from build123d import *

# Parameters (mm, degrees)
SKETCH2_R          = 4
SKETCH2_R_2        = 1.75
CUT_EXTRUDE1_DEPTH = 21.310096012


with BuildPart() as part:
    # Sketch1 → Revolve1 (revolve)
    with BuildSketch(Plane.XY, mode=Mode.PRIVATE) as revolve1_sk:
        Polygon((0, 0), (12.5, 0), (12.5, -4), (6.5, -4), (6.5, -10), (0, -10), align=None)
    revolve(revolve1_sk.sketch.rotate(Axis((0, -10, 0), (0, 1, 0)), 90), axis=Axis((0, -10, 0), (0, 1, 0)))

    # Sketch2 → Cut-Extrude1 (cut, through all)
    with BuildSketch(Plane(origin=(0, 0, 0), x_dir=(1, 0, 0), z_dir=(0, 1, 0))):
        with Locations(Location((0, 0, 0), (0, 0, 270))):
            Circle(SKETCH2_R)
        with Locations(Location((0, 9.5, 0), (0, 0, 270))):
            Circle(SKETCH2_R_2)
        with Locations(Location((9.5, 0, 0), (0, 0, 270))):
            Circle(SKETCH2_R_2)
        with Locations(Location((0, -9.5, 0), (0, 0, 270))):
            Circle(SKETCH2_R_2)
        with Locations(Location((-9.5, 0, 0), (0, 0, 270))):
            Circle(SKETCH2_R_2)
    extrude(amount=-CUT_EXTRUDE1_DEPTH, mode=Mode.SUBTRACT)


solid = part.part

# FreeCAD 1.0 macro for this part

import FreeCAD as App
import Part
import Sketcher
Q = App.Units.Quantity

doc = App.newDocument("Part")
body = doc.addObject("PartDesign::Body", "Body")

# Sketch on XY plane
sketch1 = body.newObject("Sketcher::SketchObject", "Sketch")
sketch1.AttachmentSupport = (doc.getObject("XY_Plane"), [""])
sketch1.MapMode = "FlatFace"
sketch1.addGeometry([
    Part.LineSegment(App.Vector(12.5, 0, 0), App.Vector(0, 0, 0)),  # 0
    Part.LineSegment(App.Vector(0, 0, 0), App.Vector(0, -10, 0)),  # 1
    Part.LineSegment(App.Vector(0, -10, 0), App.Vector(6.5, -10, 0)),  # 2
    Part.LineSegment(App.Vector(6.5, -10, 0), App.Vector(6.5, -4, 0)),  # 3
    Part.LineSegment(App.Vector(6.5, -4, 0), App.Vector(12.5, -4, 0)),  # 4
    Part.LineSegment(App.Vector(12.5, -4, 0), App.Vector(12.5, 0, 0)),  # 5
], False)
sketch1.addConstraint([
    Sketcher.Constraint("Coincident", 0, 2, 1, 1),
    Sketcher.Constraint("Coincident", 1, 2, 2, 1),
    Sketcher.Constraint("Coincident", 2, 2, 3, 1),
    Sketcher.Constraint("Coincident", 3, 2, 4, 1),
    Sketcher.Constraint("Coincident", 4, 2, 5, 1),
    Sketcher.Constraint("Coincident", 5, 2, 0, 1),
    Sketcher.Constraint("Horizontal", 0),
    Sketcher.Constraint("Vertical", 1),
    Sketcher.Constraint("Horizontal", 2),
    Sketcher.Constraint("Vertical", 3),
    Sketcher.Constraint("Horizontal", 4),
    Sketcher.Constraint("Vertical", 5),
    Sketcher.Constraint("Coincident", 0, 2, -1, 1),
    Sketcher.Constraint("Equal", 4, 3),
    Sketcher.Constraint("DistanceX", 4, 1, 4, 2, Q("6 mm")),
    Sketcher.Constraint("DistanceY", 1, 2, 1, 1, Q("10 mm")),
    Sketcher.Constraint("DistanceX", 0, 2, 0, 1, Q("12.5 mm")),
])
revolution = body.newObject("PartDesign::Revolution", "Revolution")
revolution.Profile = sketch1
revolution.ReferenceAxis = (sketch1, ["V_Axis"])
revolution.Angle = 360

# Sketch on XZ plane
sketch2 = body.newObject("Sketcher::SketchObject", "Sketch001")
sketch2.AttachmentSupport = (doc.getObject("XZ_Plane"), [""])
sketch2.MapMode = "FlatFace"
sketch2.addGeometry([
    Part.Circle(App.Vector(0, 0, 0), App.Vector(0, 0, 1), 4),  # 0
    Part.Circle(App.Vector(0, -9.5, 0), App.Vector(0, 0, 1), 1.75),  # 1
    Part.Circle(App.Vector(9.5, 0, 0), App.Vector(0, 0, 1), 1.75),  # 2
    Part.Circle(App.Vector(0, 9.5, 0), App.Vector(0, 0, 1), 1.75),  # 3
    Part.Circle(App.Vector(-9.5, 0, 0), App.Vector(0, 0, 1), 1.75),  # 4
], False)
sketch2.addConstraint([
    Sketcher.Constraint("Coincident", 0, 3, -1, 1),
    Sketcher.Constraint("Equal", 1, 2),
    Sketcher.Constraint("Equal", 2, 3),
    Sketcher.Constraint("Equal", 3, 4),
    Sketcher.Constraint("Symmetric", 1, 3, 3, 3, -1, 1),
    Sketcher.Constraint("Symmetric", 2, 3, 4, 3, -1, 1),
    Sketcher.Constraint("PointOnObject", 1, 3, -2),
    Sketcher.Constraint("PointOnObject", 2, 3, -1),
    Sketcher.Constraint("Diameter", 0, Q("8 mm")),
    Sketcher.Constraint("Diameter", 1, Q("3.5 mm")),
    Sketcher.Constraint("DistanceY", 1, 3, 3, 3, Q("19 mm")),
    Sketcher.Constraint("DistanceX", 4, 3, 2, 3, Q("19 mm")),
])
pocket1 = body.newObject("PartDesign::Pocket", "Pocket")
pocket1.Profile = sketch2
pocket1.Type = "ThroughAll"
pocket1.Reversed = True

doc.recompute()
